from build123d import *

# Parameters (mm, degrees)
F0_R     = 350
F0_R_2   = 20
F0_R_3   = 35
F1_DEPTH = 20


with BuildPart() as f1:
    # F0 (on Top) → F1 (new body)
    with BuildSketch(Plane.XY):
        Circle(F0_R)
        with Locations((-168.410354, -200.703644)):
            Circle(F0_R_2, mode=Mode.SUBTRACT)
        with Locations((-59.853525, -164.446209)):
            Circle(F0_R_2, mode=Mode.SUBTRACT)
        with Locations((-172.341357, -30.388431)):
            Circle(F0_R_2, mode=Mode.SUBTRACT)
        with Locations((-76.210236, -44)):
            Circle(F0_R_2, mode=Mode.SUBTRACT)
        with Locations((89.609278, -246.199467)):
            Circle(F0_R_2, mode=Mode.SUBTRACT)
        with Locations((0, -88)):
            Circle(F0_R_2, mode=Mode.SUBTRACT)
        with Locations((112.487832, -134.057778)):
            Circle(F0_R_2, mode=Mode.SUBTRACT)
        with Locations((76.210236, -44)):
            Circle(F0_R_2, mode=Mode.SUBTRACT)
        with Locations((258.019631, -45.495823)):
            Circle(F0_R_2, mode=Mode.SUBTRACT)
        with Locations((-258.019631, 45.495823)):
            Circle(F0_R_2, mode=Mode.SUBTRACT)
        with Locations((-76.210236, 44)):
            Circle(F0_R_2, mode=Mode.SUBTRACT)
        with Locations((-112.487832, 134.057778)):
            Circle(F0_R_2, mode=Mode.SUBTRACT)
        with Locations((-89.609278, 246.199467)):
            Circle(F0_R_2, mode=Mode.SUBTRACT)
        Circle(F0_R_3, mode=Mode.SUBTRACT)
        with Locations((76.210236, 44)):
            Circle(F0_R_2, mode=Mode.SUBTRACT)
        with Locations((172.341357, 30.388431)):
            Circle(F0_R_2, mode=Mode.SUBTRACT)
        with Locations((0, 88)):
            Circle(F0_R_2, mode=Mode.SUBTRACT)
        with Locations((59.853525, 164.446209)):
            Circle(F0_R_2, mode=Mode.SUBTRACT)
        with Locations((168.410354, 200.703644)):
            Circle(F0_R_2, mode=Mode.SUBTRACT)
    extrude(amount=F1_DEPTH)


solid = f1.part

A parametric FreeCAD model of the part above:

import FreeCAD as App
import Part
import Sketcher

V = App.Vector
Q = App.Units.Quantity

doc = App.newDocument("Part")
params = doc.addObject("Spreadsheet::Sheet", "Params")
for row, (alias, value) in enumerate([
    ("sketch1_diameter", "700 mm"),
    ("sketch1_diameter2", "40 mm"),
    ("sketch1_diameter3", "70 mm"),
    ("pad1_length", "20 mm"),
], start=1):
    params.set(f"A{row}", alias)
    params.set(f"B{row}", "=" + value)
    params.setAlias(f"B{row}", alias)

body = doc.addObject("PartDesign::Body", "Body")

# Sketch on XY plane
sketch1 = doc.addObject("Sketcher::SketchObject", "Sketch")
body.addObject(sketch1)
sketch1.AttachmentSupport = (doc.XY_Plane, [""])
sketch1.MapMode = "FlatFace"
sketch1.addGeometry([
    Part.Circle(V(0, 0, 0), V(0, 0, 1), 350),  # 0
    Part.Circle(V(-168, -201, 0), V(0, 0, 1), 20),  # 1
    Part.Circle(V(-60, -164, 0), V(0, 0, 1), 20),  # 2
    Part.Circle(V(-172, -30, 0), V(0, 0, 1), 20),  # 3
    Part.Circle(V(-76, -44, 0), V(0, 0, 1), 20),  # 4
    Part.Circle(V(90, -246, 0), V(0, 0, 1), 20),  # 5
    Part.Circle(V(112, -134, 0), V(0, 0, 1), 20),  # 6
    Part.Circle(V(0, -88, 0), V(0, 0, 1), 20),  # 7
    Part.Circle(V(76, -44, 0), V(0, 0, 1), 20),  # 8
    Part.Circle(V(258, -45, 0), V(0, 0, 1), 20),  # 9
    Part.Circle(V(-258, 45, 0), V(0, 0, 1), 20),  # 10
    Part.Circle(V(-76, 44, 0), V(0, 0, 1), 20),  # 11
    Part.Circle(V(-112, 134, 0), V(0, 0, 1), 20),  # 12
    Part.Circle(V(-90, 246, 0), V(0, 0, 1), 20),  # 13
    Part.Circle(V(0, 0, 0), V(0, 0, 1), 35),  # 14
    Part.Circle(V(76, 44, 0), V(0, 0, 1), 20),  # 15
    Part.Circle(V(0, 88, 0), V(0, 0, 1), 20),  # 16
    Part.Circle(V(172, 30, 0), V(0, 0, 1), 20),  # 17
    Part.Circle(V(60, 164, 0), V(0, 0, 1), 20),  # 18
    Part.Circle(V(168, 201, 0), V(0, 0, 1), 20),  # 19
], False)
sketch1.addConstraint([
    Sketcher.Constraint("Coincident", 0, 3, -1, 1),
    Sketcher.Constraint("Coincident", 14, 3, -1, 1),
    Sketcher.Constraint("Equal", 1, 2),
    Sketcher.Constraint("Equal", 2, 3),
    Sketcher.Constraint("Equal", 3, 4),
    Sketcher.Constraint("Equal", 4, 5),
    Sketcher.Constraint("Equal", 5, 6),
    Sketcher.Constraint("Equal", 6, 7),
    Sketcher.Constraint("Equal", 7, 8),
    Sketcher.Constraint("Equal", 8, 9),
    Sketcher.Constraint("Equal", 9, 10),
    Sketcher.Constraint("Equal", 10, 11),
    Sketcher.Constraint("Equal", 11, 12),
    Sketcher.Constraint("Equal", 12, 13),
    Sketcher.Constraint("Equal", 13, 15),
    Sketcher.Constraint("Equal", 15, 16),
    Sketcher.Constraint("Equal", 16, 17),
    Sketcher.Constraint("Equal", 17, 18),
    Sketcher.Constraint("Equal", 18, 19),
    Sketcher.Constraint("Symmetric", 9, 3, 10, 3, -1, 1),
    Sketcher.Constraint("Symmetric", 8, 3, 11, 3, -1, 1),
    Sketcher.Constraint("Symmetric", 6, 3, 12, 3, -1, 1),
    Sketcher.Constraint("Symmetric", 5, 3, 13, 3, -1, 1),
    Sketcher.Constraint("Symmetric", 4, 3, 15, 3, -1, 1),
    Sketcher.Constraint("Symmetric", 7, 3, 16, 3, -1, 1),
    Sketcher.Constraint("Symmetric", 3, 3, 17, 3, -1, 1),
    Sketcher.Constraint("Symmetric", 2, 3, 18, 3, -1, 1),
    Sketcher.Constraint("Symmetric", 1, 3, 19, 3, -1, 1),
    Sketcher.Constraint("Symmetric", 4, 3, 8, 3, -2),
    Sketcher.Constraint("PointOnObject", 7, 3, -2),
    Sketcher.Constraint("Diameter", 0, Q("700 mm")),
    Sketcher.Constraint("Diameter", 1, Q("40 mm")),
    Sketcher.Constraint("Diameter", 14, Q("70 mm")),
    Sketcher.Constraint("DistanceY", 4, 3, -1, 1, Q("44 mm")),
    Sketcher.Constraint("DistanceY", 7, 3, -1, 1, Q("88 mm")),
    Sketcher.Constraint("DistanceX", 6, 3, 9, 3, Q("145.531799 mm")),
    Sketcher.Constraint("DistanceY", 3, 3, 13, 3, Q("276.587898 mm")),
    Sketcher.Constraint("DistanceY", 2, 3, -1, 1, Q("164.446209 mm")),
    Sketcher.Constraint("DistanceY", 3, 3, -1, 1, Q("30.388431 mm")),
    Sketcher.Constraint("DistanceX", -1, 1, 5, 3, Q("89.609278 mm")),
    Sketcher.Constraint("DistanceX", -1, 1, 6, 3, Q("112.487832 mm")),
    Sketcher.Constraint("DistanceY", 6, 3, -1, 1, Q("134.057778 mm")),
    Sketcher.Constraint("DistanceX", 1, 3, 2, 3, Q("108.556829 mm")),
    Sketcher.Constraint("DistanceX", 3, 3, 2, 3, Q("112.487832 mm")),
    Sketcher.Constraint("DistanceX", 3, 3, 4, 3, Q("96.131121 mm")),
    Sketcher.Constraint("DistanceX", 1, 3, 5, 3, Q("258.019632 mm")),
    Sketcher.Constraint("DistanceY", 1, 3, -1, 1, Q("200.703644 mm")),
    Sketcher.Constraint("DistanceY", 9, 3, -1, 1, Q("45.495823 mm")),
])
sketch1.setExpression("Constraints[30]", "Params.sketch1_diameter")
sketch1.setExpression("Constraints[31]", "Params.sketch1_diameter2")
sketch1.setExpression("Constraints[32]", "Params.sketch1_diameter3")
pad1 = doc.addObject("PartDesign::Pad", "Pad")
body.addObject(pad1)
pad1.Profile = sketch1
pad1.setExpression("Length", "Params.pad1_length")

doc.recompute()
